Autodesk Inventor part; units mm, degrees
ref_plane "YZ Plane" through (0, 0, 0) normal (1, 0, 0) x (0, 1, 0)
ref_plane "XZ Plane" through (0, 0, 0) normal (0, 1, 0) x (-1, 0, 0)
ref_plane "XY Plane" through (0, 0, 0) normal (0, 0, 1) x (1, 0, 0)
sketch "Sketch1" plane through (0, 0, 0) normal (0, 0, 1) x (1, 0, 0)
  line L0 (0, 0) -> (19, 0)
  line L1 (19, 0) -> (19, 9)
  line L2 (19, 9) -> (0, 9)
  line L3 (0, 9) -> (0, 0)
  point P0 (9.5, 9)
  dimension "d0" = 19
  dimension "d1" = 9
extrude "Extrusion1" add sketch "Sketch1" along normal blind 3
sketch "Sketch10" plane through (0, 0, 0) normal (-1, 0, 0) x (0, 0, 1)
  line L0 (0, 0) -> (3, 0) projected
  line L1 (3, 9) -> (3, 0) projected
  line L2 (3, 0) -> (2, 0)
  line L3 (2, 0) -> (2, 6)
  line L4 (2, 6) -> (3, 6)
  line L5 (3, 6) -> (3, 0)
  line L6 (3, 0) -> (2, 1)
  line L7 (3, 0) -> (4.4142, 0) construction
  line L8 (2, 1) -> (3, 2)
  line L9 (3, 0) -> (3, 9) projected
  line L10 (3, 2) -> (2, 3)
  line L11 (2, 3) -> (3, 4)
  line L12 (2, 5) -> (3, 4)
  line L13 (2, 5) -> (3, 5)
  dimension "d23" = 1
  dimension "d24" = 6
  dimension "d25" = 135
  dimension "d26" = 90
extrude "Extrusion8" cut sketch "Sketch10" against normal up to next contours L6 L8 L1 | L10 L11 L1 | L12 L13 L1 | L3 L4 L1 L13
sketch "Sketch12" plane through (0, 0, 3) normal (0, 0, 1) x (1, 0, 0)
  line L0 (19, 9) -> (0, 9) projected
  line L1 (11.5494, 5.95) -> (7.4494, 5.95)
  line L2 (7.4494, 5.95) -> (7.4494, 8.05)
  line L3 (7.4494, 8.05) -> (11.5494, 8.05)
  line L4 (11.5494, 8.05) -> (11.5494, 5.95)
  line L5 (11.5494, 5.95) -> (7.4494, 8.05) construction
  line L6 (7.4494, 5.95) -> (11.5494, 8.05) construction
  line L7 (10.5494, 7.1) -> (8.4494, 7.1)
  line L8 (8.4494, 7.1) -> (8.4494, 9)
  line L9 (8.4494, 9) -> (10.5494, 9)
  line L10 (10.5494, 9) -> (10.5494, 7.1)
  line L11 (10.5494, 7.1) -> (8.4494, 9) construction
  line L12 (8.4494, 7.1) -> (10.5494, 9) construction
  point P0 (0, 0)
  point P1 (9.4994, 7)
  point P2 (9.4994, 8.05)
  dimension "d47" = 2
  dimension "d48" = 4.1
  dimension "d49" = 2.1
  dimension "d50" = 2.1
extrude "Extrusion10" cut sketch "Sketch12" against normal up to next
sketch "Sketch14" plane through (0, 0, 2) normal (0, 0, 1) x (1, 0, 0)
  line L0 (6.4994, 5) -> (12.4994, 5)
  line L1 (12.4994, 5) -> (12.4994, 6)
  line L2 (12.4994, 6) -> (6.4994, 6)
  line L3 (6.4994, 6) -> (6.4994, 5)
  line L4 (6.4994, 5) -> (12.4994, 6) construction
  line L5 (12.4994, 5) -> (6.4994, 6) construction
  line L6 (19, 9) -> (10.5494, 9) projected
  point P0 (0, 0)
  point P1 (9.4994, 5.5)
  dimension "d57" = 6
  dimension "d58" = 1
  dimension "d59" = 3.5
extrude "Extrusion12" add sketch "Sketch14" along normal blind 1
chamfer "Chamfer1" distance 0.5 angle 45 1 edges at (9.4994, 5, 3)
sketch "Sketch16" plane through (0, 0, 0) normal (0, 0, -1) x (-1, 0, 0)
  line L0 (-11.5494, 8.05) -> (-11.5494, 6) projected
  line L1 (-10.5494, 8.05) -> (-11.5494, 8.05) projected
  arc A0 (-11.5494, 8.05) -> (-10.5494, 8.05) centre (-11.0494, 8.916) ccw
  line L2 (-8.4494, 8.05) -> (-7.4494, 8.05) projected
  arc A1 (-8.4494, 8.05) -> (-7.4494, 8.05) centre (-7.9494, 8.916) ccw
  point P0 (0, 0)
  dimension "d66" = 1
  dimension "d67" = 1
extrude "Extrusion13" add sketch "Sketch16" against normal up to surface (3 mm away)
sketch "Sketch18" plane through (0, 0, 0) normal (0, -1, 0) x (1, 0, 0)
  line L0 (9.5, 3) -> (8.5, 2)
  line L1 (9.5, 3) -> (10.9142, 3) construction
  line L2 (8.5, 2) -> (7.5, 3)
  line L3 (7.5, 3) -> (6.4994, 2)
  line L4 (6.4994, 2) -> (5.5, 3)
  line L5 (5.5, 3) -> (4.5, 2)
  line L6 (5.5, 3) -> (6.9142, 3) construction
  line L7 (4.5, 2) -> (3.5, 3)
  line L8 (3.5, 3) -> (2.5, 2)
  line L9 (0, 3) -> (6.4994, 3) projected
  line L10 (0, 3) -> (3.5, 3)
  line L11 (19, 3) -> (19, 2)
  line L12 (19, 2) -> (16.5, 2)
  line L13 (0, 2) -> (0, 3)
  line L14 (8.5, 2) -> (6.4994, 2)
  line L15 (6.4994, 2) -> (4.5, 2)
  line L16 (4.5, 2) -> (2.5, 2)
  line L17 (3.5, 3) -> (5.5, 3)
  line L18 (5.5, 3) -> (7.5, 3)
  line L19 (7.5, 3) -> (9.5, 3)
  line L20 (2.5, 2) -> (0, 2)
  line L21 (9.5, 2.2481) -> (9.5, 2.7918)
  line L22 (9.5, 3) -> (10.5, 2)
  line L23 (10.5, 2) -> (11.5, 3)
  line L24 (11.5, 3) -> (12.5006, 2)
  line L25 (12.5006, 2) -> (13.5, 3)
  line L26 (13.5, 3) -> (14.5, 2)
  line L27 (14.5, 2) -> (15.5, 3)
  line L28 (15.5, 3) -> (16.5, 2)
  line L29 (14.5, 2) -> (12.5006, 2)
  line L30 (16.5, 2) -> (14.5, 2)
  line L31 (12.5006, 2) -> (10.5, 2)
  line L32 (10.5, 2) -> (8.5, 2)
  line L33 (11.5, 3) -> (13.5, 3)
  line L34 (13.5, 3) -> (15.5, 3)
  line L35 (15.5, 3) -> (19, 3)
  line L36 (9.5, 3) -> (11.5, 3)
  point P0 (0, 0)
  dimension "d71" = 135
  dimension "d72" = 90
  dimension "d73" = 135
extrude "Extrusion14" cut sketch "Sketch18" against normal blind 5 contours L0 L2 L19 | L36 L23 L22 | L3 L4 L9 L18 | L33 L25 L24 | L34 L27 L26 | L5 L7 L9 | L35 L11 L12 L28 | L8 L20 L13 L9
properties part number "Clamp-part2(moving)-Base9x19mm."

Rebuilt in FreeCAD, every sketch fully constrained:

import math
import FreeCAD as App
import Part
import Sketcher
Q = App.Units.Quantity


def edges_at(feature, points):
    """Names of the edges that pass closest to the given points."""
    edges = feature.Shape.Edges
    near = lambda p: min(range(len(edges)), key=lambda i: edges[i].distToShape(Part.Vertex(*p))[0])
    return sorted({f"Edge{near(p) + 1}" for p in points})

doc = App.newDocument("Part")
body = doc.addObject("PartDesign::Body", "Body")

# Sketch on XY plane
sketch1 = body.newObject("Sketcher::SketchObject", "Sketch")
sketch1.AttachmentSupport = (doc.getObject("XY_Plane"), [""])
sketch1.MapMode = "FlatFace"
sketch1.addGeometry([
    Part.LineSegment(App.Vector(0, 9, 0), App.Vector(0, 0, 0)),
    Part.LineSegment(App.Vector(0, 0, 0), App.Vector(19, 0, 0)),
    Part.LineSegment(App.Vector(19, 0, 0), App.Vector(19, 9, 0)),
    Part.LineSegment(App.Vector(19, 9, 0), App.Vector(0, 9, 0)),
], False)
sketch1.addConstraint([
    Sketcher.Constraint("Coincident", 0, 2, 1, 1),
    Sketcher.Constraint("Coincident", 1, 2, 2, 1),
    Sketcher.Constraint("Coincident", 2, 2, 3, 1),
    Sketcher.Constraint("Coincident", 3, 2, 0, 1),
    Sketcher.Constraint("Vertical", 0),
    Sketcher.Constraint("Horizontal", 1),
    Sketcher.Constraint("Vertical", 2),
    Sketcher.Constraint("Horizontal", 3),
    Sketcher.Constraint("Coincident", 0, 2, -1, 1),
    Sketcher.Constraint("DistanceX", 1, 1, 1, 2, Q("19 mm")),
    Sketcher.Constraint("DistanceY", 0, 2, 0, 1, Q("9 mm")),
])
pad1 = body.newObject("PartDesign::Pad", "Pad")
pad1.Profile = sketch1
pad1.Length = 3

# Sketch on YZ plane
sketch2 = body.newObject("Sketcher::SketchObject", "Sketch001")
sketch2.AttachmentSupport = (doc.getObject("YZ_Plane"), [""])
sketch2.MapMode = "FlatFace"
sketch2.addGeometry([
    Part.LineSegment(App.Vector(1, 2, 0), App.Vector(0, 3, 0)),  # 0
    Part.LineSegment(App.Vector(0, 3, 0), App.Vector(2, 3, 0)),  # 1
    Part.LineSegment(App.Vector(2, 3, 0), App.Vector(1, 2, 0)),  # 2
    Part.LineSegment(App.Vector(3, 2, 0), App.Vector(2, 3, 0)),  # 3
    Part.LineSegment(App.Vector(2, 3, 0), App.Vector(4, 3, 0)),  # 4
    Part.LineSegment(App.Vector(4, 3, 0), App.Vector(3, 2, 0)),  # 5
    Part.LineSegment(App.Vector(5, 2, 0), App.Vector(4, 3, 0)),  # 6
    Part.LineSegment(App.Vector(4, 3, 0), App.Vector(6, 3, 0)),  # 7
    Part.LineSegment(App.Vector(6, 3, 0), App.Vector(6, 2, 0)),  # 8
    Part.LineSegment(App.Vector(6, 2, 0), App.Vector(5, 2, 0)),  # 9
], False)
sketch2.addConstraint([
    Sketcher.Constraint("Coincident", 0, 2, 1, 1),
    Sketcher.Constraint("Coincident", 1, 2, 2, 1),
    Sketcher.Constraint("Coincident", 2, 2, 0, 1),
    Sketcher.Constraint("Coincident", 3, 2, 4, 1),
    Sketcher.Constraint("Coincident", 4, 2, 5, 1),
    Sketcher.Constraint("Coincident", 5, 2, 3, 1),
    Sketcher.Constraint("Coincident", 6, 2, 7, 1),
    Sketcher.Constraint("Coincident", 7, 2, 8, 1),
    Sketcher.Constraint("Coincident", 8, 2, 9, 1),
    Sketcher.Constraint("Coincident", 9, 2, 6, 1),
    Sketcher.Constraint("Horizontal", 1),
    Sketcher.Constraint("Horizontal", 4),
    Sketcher.Constraint("Horizontal", 7),
    Sketcher.Constraint("Vertical", 8),
    Sketcher.Constraint("Horizontal", 9),
    Sketcher.Constraint("Coincident", 3, 2, 1, 2),
    Sketcher.Constraint("Coincident", 6, 2, 4, 2),
    Sketcher.Constraint("PointOnObject", 0, 2, -2),
    Sketcher.Constraint("Perpendicular", 0, 2),
    Sketcher.Constraint("Perpendicular", 2, 3),
    Sketcher.Constraint("Perpendicular", 3, 5),
    Sketcher.Constraint("Perpendicular", 5, 6),
    Sketcher.Constraint("Horizontal", 2, 2, 5, 2),
    Sketcher.Constraint("Horizontal", 5, 2, 8, 2),
    Sketcher.Constraint("Equal", 4, 7),
    Sketcher.Constraint("Equal", 9, 8),
    Sketcher.Constraint("DistanceX", 9, 2, 9, 1, Q("1 mm")),
    Sketcher.Constraint("DistanceY", -1, 1, 0, 2, Q("3 mm")),
])
pocket1 = body.newObject("PartDesign::Pocket", "Pocket")
pocket1.Profile = sketch2
pocket1.Type = "UpToFirst"
pocket1.Reversed = True

# Sketch on XY plane
sketch3 = body.newObject("Sketcher::SketchObject", "Sketch002")
sketch3.AttachmentSupport = (doc.getObject("XY_Plane"), [""])
sketch3.MapMode = "FlatFace"
sketch3.AttachmentOffset = App.Placement(App.Vector(0, 0, 3), App.Rotation())
sketch3.addGeometry([
    Part.LineSegment(App.Vector(10.5, 8.1, 0), App.Vector(10.5, 9, 0)),  # 0
    Part.LineSegment(App.Vector(10.5, 9, 0), App.Vector(8.4, 9, 0)),  # 1
    Part.LineSegment(App.Vector(8.4, 9, 0), App.Vector(8.4, 8.1, 0)),  # 2
    Part.LineSegment(App.Vector(8.4, 8.1, 0), App.Vector(7.4, 8.1, 0)),  # 3
    Part.LineSegment(App.Vector(7.4, 8.1, 0), App.Vector(7.4, 6, 0)),  # 4
    Part.LineSegment(App.Vector(7.4, 6, 0), App.Vector(11.5, 6, 0)),  # 5
    Part.LineSegment(App.Vector(11.5, 6, 0), App.Vector(11.5, 8.1, 0)),  # 6
    Part.LineSegment(App.Vector(11.5, 8.1, 0), App.Vector(10.5, 8.1, 0)),  # 7
], False)
sketch3.addConstraint([
    Sketcher.Constraint("Coincident", 0, 2, 1, 1),
    Sketcher.Constraint("Coincident", 1, 2, 2, 1),
    Sketcher.Constraint("Coincident", 2, 2, 3, 1),
    Sketcher.Constraint("Coincident", 3, 2, 4, 1),
    Sketcher.Constraint("Coincident", 4, 2, 5, 1),
    Sketcher.Constraint("Coincident", 5, 2, 6, 1),
    Sketcher.Constraint("Coincident", 6, 2, 7, 1),
    Sketcher.Constraint("Coincident", 7, 2, 0, 1),
    Sketcher.Constraint("Vertical", 0),
    Sketcher.Constraint("Horizontal", 1),
    Sketcher.Constraint("Vertical", 2),
    Sketcher.Constraint("Horizontal", 3),
    Sketcher.Constraint("Vertical", 4),
    Sketcher.Constraint("Horizontal", 5),
    Sketcher.Constraint("Vertical", 6),
    Sketcher.Constraint("Horizontal", 7),
    Sketcher.Constraint("Horizontal", 3, 2, 6, 2),
    Sketcher.Constraint("Equal", 3, 7),
    Sketcher.Constraint("Equal", 1, 4),
    Sketcher.Constraint("DistanceX", 1, 2, 1, 1, Q("2.1 mm")),
    Sketcher.Constraint("DistanceX", 5, 1, 5, 2, Q("4.1 mm")),
    Sketcher.Constraint("DistanceY", -1, 1, 0, 2, Q("9 mm")),
    Sketcher.Constraint("DistanceY", 0, 1, 0, 2, Q("0.95 mm")),
    Sketcher.Constraint("DistanceX", -1, 1, 0, 2, Q("10.5494 mm")),
])
pocket2 = body.newObject("PartDesign::Pocket", "Pocket001")
pocket2.Profile = sketch3
pocket2.Type = "UpToFirst"

# Sketch on XY plane
sketch4 = body.newObject("Sketcher::SketchObject", "Sketch003")
sketch4.AttachmentSupport = (doc.getObject("XY_Plane"), [""])
sketch4.MapMode = "FlatFace"
sketch4.AttachmentOffset = App.Placement(App.Vector(0, 0, 2), App.Rotation())
sketch4.addGeometry([
    Part.LineSegment(App.Vector(6.5, 6, 0), App.Vector(6.5, 5, 0)),
    Part.LineSegment(App.Vector(6.5, 5, 0), App.Vector(12.5, 5, 0)),
    Part.LineSegment(App.Vector(12.5, 5, 0), App.Vector(12.5, 6, 0)),
    Part.LineSegment(App.Vector(12.5, 6, 0), App.Vector(6.5, 6, 0)),
], False)
sketch4.addConstraint([
    Sketcher.Constraint("Coincident", 0, 2, 1, 1),
    Sketcher.Constraint("Coincident", 1, 2, 2, 1),
    Sketcher.Constraint("Coincident", 2, 2, 3, 1),
    Sketcher.Constraint("Coincident", 3, 2, 0, 1),
    Sketcher.Constraint("Vertical", 0),
    Sketcher.Constraint("Horizontal", 1),
    Sketcher.Constraint("Vertical", 2),
    Sketcher.Constraint("Horizontal", 3),
    Sketcher.Constraint("DistanceX", 1, 1, 1, 2, Q("6 mm")),
    Sketcher.Constraint("DistanceY", 0, 2, 0, 1, Q("1 mm")),
    Sketcher.Constraint("DistanceY", -1, 1, 2, 2, Q("6 mm")),
    Sketcher.Constraint("DistanceX", -1, 1, 0, 2, Q("6.4994 mm")),
])
pad2 = body.newObject("PartDesign::Pad", "Pad001")
pad2.Profile = sketch4
pad2.Length = 1
doc.recompute()

chamfer = body.newObject("PartDesign::Chamfer", "Chamfer")
chamfer.Base = (pad2, edges_at(pad2, [(9.499, 5, 3)]))
chamfer.Size = 0.5

# Sketch on XY plane
sketch5 = body.newObject("Sketcher::SketchObject", "Sketch004")
sketch5.AttachmentSupport = (doc.getObject("XY_Plane"), [""])
sketch5.MapMode = "FlatFace"
sketch5.addGeometry([
    Part.ArcOfCircle(Part.Circle(App.Vector(11, 8.9, 0), App.Vector(0, 0, 1), 1), math.radians(-120), math.radians(-60)),
    Part.LineSegment(App.Vector(10.5, 8.1, 0), App.Vector(11.5, 8.1, 0)),
    Part.LineSegment(App.Vector(7.4, 8.1, 0), App.Vector(8.4, 8.1, 0)),
    Part.ArcOfCircle(Part.Circle(App.Vector(7.9, 8.9, 0), App.Vector(0, 0, 1), 1), math.radians(-120), math.radians(-60)),
], False)
sketch5.addConstraint([
    Sketcher.Constraint("Coincident", 0, 1, 1, 1),
    Sketcher.Constraint("Coincident", 1, 2, 0, 2),
    Sketcher.Constraint("Coincident", 2, 1, 3, 1),
    Sketcher.Constraint("Coincident", 3, 2, 2, 2),
    Sketcher.Constraint("Horizontal", 1),
    Sketcher.Constraint("Horizontal", 2),
    Sketcher.Constraint("Equal", 0, 3),
    Sketcher.Constraint("Horizontal", 0, 3, 3, 3),
    Sketcher.Constraint("Horizontal", 1, 2, 2, 1),
    Sketcher.Constraint("Radius", 0, Q("1 mm")),
    Sketcher.Constraint("DistanceX", 1, 1, 1, 2, Q("1 mm")),
    Sketcher.Constraint("DistanceX", 3, 3, 0, 3, Q("3.1 mm")),
    Sketcher.Constraint("DistanceY", -1, 1, 0, 1, Q("8.05 mm")),
    Sketcher.Constraint("DistanceX", -1, 1, 0, 3, Q("11.0494 mm")),
])
pad3 = body.newObject("PartDesign::Pad", "Pad002")
pad3.Profile = sketch5
pad3.Length = 3

# Sketch on XZ plane
sketch6 = body.newObject("Sketcher::SketchObject", "Sketch005")
sketch6.AttachmentSupport = (doc.getObject("XZ_Plane"), [""])
sketch6.MapMode = "FlatFace"
sketch6.addGeometry([
    Part.LineSegment(App.Vector(8.5, 2, 0), App.Vector(9.5, 3, 0)),  # 0
    Part.LineSegment(App.Vector(9.5, 3, 0), App.Vector(7.5, 3, 0)),  # 1
    Part.LineSegment(App.Vector(7.5, 3, 0), App.Vector(8.5, 2, 0)),  # 2
    Part.LineSegment(App.Vector(11.5, 3, 0), App.Vector(9.5, 3, 0)),  # 3
    Part.LineSegment(App.Vector(9.5, 3, 0), App.Vector(10.5, 2, 0)),  # 4
    Part.LineSegment(App.Vector(10.5, 2, 0), App.Vector(11.5, 3, 0)),  # 5
    Part.LineSegment(App.Vector(6.5, 2, 0), App.Vector(7.5, 3, 0)),  # 6
    Part.LineSegment(App.Vector(7.5, 3, 0), App.Vector(5.5, 3, 0)),  # 7
    Part.LineSegment(App.Vector(5.5, 3, 0), App.Vector(6.5, 2, 0)),  # 8
    Part.LineSegment(App.Vector(13.5, 3, 0), App.Vector(11.5, 3, 0)),  # 9
    Part.LineSegment(App.Vector(11.5, 3, 0), App.Vector(12.5, 2, 0)),  # 10
    Part.LineSegment(App.Vector(12.5, 2, 0), App.Vector(13.5, 3, 0)),  # 11
    Part.LineSegment(App.Vector(15.5, 3, 0), App.Vector(13.5, 3, 0)),  # 12
    Part.LineSegment(App.Vector(13.5, 3, 0), App.Vector(14.5, 2, 0)),  # 13
    Part.LineSegment(App.Vector(14.5, 2, 0), App.Vector(15.5, 3, 0)),  # 14
    Part.LineSegment(App.Vector(4.5, 2, 0), App.Vector(5.5, 3, 0)),  # 15
    Part.LineSegment(App.Vector(5.5, 3, 0), App.Vector(3.5, 3, 0)),  # 16
    Part.LineSegment(App.Vector(3.5, 3, 0), App.Vector(4.5, 2, 0)),  # 17
    Part.LineSegment(App.Vector(19, 3, 0), App.Vector(15.5, 3, 0)),  # 18
    Part.LineSegment(App.Vector(15.5, 3, 0), App.Vector(16.5, 2, 0)),  # 19
    Part.LineSegment(App.Vector(16.5, 2, 0), App.Vector(19, 2, 0)),  # 20
    Part.LineSegment(App.Vector(19, 2, 0), App.Vector(19, 3, 0)),  # 21
    Part.LineSegment(App.Vector(2.5, 2, 0), App.Vector(3.5, 3, 0)),  # 22
    Part.LineSegment(App.Vector(3.5, 3, 0), App.Vector(0, 3, 0)),  # 23
    Part.LineSegment(App.Vector(0, 3, 0), App.Vector(0, 2, 0)),  # 24
    Part.LineSegment(App.Vector(0, 2, 0), App.Vector(2.5, 2, 0)),  # 25
], False)
sketch6.addConstraint([
    Sketcher.Constraint("Coincident", 0, 2, 1, 1),
    Sketcher.Constraint("Coincident", 1, 2, 2, 1),
    Sketcher.Constraint("Coincident", 2, 2, 0, 1),
    Sketcher.Constraint("Coincident", 3, 2, 4, 1),
    Sketcher.Constraint("Coincident", 4, 2, 5, 1),
    Sketcher.Constraint("Coincident", 5, 2, 3, 1),
    Sketcher.Constraint("Coincident", 6, 2, 7, 1),
    Sketcher.Constraint("Coincident", 7, 2, 8, 1),
    Sketcher.Constraint("Coincident", 8, 2, 6, 1),
    Sketcher.Constraint("Coincident", 9, 2, 10, 1),
    Sketcher.Constraint("Coincident", 10, 2, 11, 1),
    Sketcher.Constraint("Coincident", 11, 2, 9, 1),
    Sketcher.Constraint("Coincident", 12, 2, 13, 1),
    Sketcher.Constraint("Coincident", 13, 2, 14, 1),
    Sketcher.Constraint("Coincident", 14, 2, 12, 1),
    Sketcher.Constraint("Coincident", 15, 2, 16, 1),
    Sketcher.Constraint("Coincident", 16, 2, 17, 1),
    Sketcher.Constraint("Coincident", 17, 2, 15, 1),
    Sketcher.Constraint("Coincident", 18, 2, 19, 1),
    Sketcher.Constraint("Coincident", 19, 2, 20, 1),
    Sketcher.Constraint("Coincident", 20, 2, 21, 1),
    Sketcher.Constraint("Coincident", 21, 2, 18, 1),
    Sketcher.Constraint("Coincident", 22, 2, 23, 1),
    Sketcher.Constraint("Coincident", 23, 2, 24, 1),
    Sketcher.Constraint("Coincident", 24, 2, 25, 1),
    Sketcher.Constraint("Coincident", 25, 2, 22, 1),
    Sketcher.Constraint("Horizontal", 1),
    Sketcher.Constraint("Horizontal", 3),
    Sketcher.Constraint("Horizontal", 7),
    Sketcher.Constraint("Horizontal", 9),
    Sketcher.Constraint("Horizontal", 12),
    Sketcher.Constraint("Horizontal", 16),
    Sketcher.Constraint("Horizontal", 18),
    Sketcher.Constraint("Horizontal", 20),
    Sketcher.Constraint("Vertical", 21),
    Sketcher.Constraint("Horizontal", 23),
    Sketcher.Constraint("Vertical", 24),
    Sketcher.Constraint("Horizontal", 25),
    Sketcher.Constraint("Coincident", 3, 2, 0, 2),
    Sketcher.Constraint("Coincident", 6, 2, 1, 2),
    Sketcher.Constraint("Coincident", 9, 2, 5, 2),
    Sketcher.Constraint("Coincident", 12, 2, 11, 2),
    Sketcher.Constraint("Coincident", 15, 2, 7, 2),
    Sketcher.Constraint("Coincident", 18, 2, 14, 2),
    Sketcher.Constraint("Coincident", 22, 2, 16, 2),
    Sketcher.Constraint("PointOnObject", 23, 2, -2),
    Sketcher.Constraint("Perpendicular", 0, 2),
    Sketcher.Constraint("Parallel", 2, 4),
    Sketcher.Constraint("Perpendicular", 4, 5),
    Sketcher.Constraint("Parallel", 5, 6),
    Sketcher.Constraint("Perpendicular", 6, 8),
    Sketcher.Constraint("Perpendicular", 5, 10),
    Sketcher.Constraint("Perpendicular", 10, 11),
    Sketcher.Constraint("Perpendicular", 11, 13),
    Sketcher.Constraint("Perpendicular", 13, 14),
    Sketcher.Constraint("Parallel", 14, 15),
    Sketcher.Constraint("Perpendicular", 15, 17),
    Sketcher.Constraint("Parallel", 17, 19),
    Sketcher.Constraint("Perpendicular", 19, 22),
    Sketcher.Constraint("Horizontal", 2, 2, 4, 2),
    Sketcher.Constraint("Horizontal", 4, 2, 8, 2),
    Sketcher.Constraint("Horizontal", 8, 2, 10, 2),
    Sketcher.Constraint("Horizontal", 10, 2, 13, 2),
    Sketcher.Constraint("Horizontal", 13, 2, 17, 2),
    Sketcher.Constraint("Horizontal", 17, 2, 19, 2),
    Sketcher.Constraint("Horizontal", 20, 2, 24, 2),
    Sketcher.Constraint("Equal", 18, 23),
    Sketcher.Constraint("Equal", 20, 25),
    Sketcher.Constraint("DistanceX", 1, 2, 1, 1, Q("2 mm")),
    Sketcher.Constraint("DistanceX", 18, 2, 18, 1, Q("3.5 mm")),
    Sketcher.Constraint("DistanceY", -1, 1, 0, 2, Q("3 mm")),
])
pocket3 = body.newObject("PartDesign::Pocket", "Pocket002")
pocket3.Profile = sketch6
pocket3.Length = 5

doc.recompute()
